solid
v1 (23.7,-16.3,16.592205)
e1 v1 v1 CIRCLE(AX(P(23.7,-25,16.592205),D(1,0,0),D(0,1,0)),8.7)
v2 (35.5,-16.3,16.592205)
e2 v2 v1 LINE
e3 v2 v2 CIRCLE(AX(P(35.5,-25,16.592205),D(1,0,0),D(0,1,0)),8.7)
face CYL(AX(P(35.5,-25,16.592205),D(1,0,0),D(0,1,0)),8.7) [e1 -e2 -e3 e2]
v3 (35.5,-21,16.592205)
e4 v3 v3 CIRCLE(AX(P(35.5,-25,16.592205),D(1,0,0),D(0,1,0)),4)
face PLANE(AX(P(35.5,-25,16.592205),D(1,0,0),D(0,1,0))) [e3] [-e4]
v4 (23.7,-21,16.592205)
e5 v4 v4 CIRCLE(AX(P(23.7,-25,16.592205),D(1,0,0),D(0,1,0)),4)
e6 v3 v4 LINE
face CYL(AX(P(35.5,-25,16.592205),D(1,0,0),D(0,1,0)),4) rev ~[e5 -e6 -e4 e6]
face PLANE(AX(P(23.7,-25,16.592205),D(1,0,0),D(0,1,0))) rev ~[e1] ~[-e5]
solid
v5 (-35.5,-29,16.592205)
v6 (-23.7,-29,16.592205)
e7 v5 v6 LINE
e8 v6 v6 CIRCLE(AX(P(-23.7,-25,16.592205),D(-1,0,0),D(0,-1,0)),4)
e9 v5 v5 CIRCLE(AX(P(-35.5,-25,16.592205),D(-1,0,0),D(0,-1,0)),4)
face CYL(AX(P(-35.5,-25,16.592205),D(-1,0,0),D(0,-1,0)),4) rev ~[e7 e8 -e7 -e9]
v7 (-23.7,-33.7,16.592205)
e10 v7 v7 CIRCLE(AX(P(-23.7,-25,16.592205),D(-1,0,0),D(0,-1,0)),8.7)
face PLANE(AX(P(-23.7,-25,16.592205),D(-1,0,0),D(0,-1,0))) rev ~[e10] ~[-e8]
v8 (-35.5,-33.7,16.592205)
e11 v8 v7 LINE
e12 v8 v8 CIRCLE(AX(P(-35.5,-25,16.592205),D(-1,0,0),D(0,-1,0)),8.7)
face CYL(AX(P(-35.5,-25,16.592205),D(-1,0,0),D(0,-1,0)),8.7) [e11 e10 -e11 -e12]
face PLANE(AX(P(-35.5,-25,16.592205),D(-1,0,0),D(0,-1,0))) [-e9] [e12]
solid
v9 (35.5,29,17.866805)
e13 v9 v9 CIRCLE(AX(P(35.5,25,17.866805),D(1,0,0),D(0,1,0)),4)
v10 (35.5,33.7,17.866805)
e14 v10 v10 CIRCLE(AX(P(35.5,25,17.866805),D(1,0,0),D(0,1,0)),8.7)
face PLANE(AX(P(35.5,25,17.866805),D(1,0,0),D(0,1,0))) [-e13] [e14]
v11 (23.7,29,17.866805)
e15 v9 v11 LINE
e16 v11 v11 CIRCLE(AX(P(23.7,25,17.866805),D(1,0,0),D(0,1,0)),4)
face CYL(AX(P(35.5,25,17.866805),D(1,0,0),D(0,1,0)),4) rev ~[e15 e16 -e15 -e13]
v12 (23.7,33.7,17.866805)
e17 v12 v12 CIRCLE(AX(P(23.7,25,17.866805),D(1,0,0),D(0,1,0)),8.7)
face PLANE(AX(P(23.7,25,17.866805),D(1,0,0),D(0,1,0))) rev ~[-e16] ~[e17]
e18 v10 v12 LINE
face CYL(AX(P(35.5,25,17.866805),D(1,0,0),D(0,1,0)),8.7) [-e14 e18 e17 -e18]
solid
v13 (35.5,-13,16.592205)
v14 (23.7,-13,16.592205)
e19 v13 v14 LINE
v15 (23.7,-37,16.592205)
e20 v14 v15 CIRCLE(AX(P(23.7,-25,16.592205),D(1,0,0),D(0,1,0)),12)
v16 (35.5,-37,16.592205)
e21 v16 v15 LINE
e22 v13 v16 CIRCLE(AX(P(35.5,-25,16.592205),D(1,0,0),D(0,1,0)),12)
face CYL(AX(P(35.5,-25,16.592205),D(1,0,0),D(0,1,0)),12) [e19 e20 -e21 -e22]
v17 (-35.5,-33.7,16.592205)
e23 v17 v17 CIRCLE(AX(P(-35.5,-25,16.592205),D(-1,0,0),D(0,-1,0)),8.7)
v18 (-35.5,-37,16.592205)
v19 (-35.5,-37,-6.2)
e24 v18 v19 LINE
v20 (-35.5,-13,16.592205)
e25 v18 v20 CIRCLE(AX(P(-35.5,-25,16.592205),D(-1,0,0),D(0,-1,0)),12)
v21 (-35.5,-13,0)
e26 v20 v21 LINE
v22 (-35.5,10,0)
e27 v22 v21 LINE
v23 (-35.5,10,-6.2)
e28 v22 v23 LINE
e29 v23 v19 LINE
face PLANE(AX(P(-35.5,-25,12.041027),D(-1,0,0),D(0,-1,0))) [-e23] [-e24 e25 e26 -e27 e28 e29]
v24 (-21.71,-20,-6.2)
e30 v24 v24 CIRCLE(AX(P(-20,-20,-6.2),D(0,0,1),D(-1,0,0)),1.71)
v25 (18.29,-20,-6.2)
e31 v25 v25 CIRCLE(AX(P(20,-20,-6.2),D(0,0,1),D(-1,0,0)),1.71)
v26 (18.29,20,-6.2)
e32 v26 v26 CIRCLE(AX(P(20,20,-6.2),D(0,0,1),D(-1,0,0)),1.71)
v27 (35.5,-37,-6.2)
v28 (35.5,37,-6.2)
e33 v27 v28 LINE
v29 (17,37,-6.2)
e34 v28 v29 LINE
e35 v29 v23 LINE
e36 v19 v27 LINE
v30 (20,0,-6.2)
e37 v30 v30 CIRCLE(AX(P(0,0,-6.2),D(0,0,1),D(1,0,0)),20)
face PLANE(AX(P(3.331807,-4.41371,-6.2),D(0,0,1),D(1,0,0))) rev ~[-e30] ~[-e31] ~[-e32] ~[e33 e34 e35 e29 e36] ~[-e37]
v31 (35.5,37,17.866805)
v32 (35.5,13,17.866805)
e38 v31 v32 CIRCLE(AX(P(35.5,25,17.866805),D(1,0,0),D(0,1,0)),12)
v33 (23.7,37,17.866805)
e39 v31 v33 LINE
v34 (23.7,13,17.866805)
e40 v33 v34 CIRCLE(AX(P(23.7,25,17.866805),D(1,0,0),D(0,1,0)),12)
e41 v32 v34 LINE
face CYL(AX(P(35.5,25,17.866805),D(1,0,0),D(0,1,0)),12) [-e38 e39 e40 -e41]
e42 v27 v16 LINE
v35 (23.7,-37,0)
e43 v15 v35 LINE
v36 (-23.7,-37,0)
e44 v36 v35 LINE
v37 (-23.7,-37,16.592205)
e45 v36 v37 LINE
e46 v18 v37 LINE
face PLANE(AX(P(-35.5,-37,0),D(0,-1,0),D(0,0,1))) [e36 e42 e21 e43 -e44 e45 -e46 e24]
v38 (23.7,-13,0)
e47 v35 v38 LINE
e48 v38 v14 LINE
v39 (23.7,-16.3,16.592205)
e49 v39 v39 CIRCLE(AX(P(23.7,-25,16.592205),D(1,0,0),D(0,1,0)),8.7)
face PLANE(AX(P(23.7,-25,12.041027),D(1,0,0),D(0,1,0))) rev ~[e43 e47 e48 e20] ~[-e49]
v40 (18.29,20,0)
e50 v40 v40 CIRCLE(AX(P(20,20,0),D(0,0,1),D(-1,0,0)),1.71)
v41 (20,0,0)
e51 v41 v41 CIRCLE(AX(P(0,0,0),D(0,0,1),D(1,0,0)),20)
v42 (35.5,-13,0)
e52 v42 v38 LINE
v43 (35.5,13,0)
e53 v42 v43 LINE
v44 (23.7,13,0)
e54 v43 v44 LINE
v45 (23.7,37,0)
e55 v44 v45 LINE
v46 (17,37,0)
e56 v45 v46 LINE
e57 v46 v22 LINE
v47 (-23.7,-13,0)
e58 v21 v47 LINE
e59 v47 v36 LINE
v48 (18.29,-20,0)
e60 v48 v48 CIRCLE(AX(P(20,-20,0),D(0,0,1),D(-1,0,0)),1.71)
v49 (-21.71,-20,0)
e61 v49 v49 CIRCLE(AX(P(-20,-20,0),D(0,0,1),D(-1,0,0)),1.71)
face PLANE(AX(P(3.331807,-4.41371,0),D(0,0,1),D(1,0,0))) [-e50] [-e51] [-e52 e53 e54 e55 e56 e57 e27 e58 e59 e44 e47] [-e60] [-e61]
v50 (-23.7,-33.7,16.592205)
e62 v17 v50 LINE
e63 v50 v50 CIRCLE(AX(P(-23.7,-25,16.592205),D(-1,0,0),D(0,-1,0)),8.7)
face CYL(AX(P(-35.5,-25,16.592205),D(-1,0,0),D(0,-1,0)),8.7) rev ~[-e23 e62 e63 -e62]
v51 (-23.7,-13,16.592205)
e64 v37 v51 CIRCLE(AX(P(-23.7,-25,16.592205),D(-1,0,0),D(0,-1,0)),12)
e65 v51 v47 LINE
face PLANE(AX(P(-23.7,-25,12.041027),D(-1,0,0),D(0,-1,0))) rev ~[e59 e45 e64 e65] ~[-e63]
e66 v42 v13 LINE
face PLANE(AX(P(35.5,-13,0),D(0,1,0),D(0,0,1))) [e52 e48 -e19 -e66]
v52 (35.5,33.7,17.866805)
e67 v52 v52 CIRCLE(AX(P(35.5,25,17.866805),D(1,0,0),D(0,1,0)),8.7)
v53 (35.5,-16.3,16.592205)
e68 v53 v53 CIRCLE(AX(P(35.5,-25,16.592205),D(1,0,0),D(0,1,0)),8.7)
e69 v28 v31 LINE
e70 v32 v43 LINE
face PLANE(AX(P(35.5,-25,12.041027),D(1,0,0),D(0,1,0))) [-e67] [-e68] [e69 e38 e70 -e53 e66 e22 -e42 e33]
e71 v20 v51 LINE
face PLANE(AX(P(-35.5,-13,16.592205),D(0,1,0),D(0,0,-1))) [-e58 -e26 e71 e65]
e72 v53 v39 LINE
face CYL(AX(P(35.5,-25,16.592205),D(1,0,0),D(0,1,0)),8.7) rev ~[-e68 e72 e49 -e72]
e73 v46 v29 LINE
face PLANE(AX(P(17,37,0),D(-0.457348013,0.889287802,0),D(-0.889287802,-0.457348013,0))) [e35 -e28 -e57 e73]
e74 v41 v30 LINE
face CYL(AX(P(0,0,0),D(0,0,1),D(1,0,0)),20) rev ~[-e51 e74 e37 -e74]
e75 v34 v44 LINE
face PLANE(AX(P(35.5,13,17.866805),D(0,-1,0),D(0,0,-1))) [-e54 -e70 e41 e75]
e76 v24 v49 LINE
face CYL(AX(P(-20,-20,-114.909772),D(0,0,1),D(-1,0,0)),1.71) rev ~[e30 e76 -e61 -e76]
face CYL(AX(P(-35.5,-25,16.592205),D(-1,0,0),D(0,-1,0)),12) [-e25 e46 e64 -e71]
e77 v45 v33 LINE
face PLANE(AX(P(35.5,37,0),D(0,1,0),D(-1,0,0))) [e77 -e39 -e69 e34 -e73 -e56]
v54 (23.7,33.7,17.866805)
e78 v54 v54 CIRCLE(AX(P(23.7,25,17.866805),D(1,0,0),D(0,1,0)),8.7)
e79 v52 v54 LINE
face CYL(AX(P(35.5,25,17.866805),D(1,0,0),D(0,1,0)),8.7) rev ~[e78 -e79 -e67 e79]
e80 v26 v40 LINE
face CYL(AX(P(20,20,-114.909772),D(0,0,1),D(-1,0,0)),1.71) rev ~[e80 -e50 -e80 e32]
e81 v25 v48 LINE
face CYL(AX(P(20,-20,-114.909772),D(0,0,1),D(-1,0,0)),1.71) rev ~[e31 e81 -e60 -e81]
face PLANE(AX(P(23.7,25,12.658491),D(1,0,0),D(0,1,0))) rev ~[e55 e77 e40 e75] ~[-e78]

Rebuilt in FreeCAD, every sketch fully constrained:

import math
import FreeCAD as App
import Part
import Sketcher


def add_polygon(sketch, points):
    """Adds a closed chain of lines whose ends are joined by coincident constraints."""
    first, n = sketch.GeometryCount, len(points)
    for a, b in zip(points, points[1:] + points[:1]):
        sketch.addGeometry(Part.LineSegment(App.Vector(*a, 0), App.Vector(*b, 0)), False)
    for i in range(n):
        sketch.addConstraint(Sketcher.Constraint("Coincident", first + i, 2, first + (i + 1) % n, 1))

doc = App.newDocument("Part")
body = doc.addObject("PartDesign::Body", "Body")

sketch1 = body.newObject("Sketcher::SketchObject", "Sketch")
sketch1.AttachmentSupport = (doc.getObject("XY_Plane"), [""])
sketch1.MapMode = "FlatFace"
add_polygon(sketch1, [(36, 37), (17, 37), (-36, 10), (-36, -37), (36, -37)])
sketch1.addGeometry(Part.Circle(App.Vector(0, 0, 0), App.Vector(0, 0, 1), 20), False)
sketch1.addConstraint([
    Sketcher.Constraint("Horizontal", 0),
    Sketcher.Constraint("Vertical", 2),
    Sketcher.Constraint("Horizontal", 3),
    Sketcher.Constraint("Vertical", 4),
    Sketcher.Constraint("Coincident", 5, 3, -1, 1),
    Sketcher.Constraint("Symmetric", 2, 2, 4, 2, -1, 1),
    Sketcher.Constraint("Diameter", 5, 40.0),
    Sketcher.Constraint("DistanceX", 3, 1, 3, 2, 71.0),
    Sketcher.Constraint("DistanceY", 2, 2, 2, 1, 47.0),
    Sketcher.Constraint("DistanceY", 4, 1, 4, 2, 74.0),
    Sketcher.Constraint("DistanceX", 0, 2, 0, 1, 18.5),
])
pad1 = body.newObject("PartDesign::Pad", "Pad")
pad1.Profile = sketch1
pad1.Length = 6.2
pad1.Reversed = True

sketch2 = body.newObject("Sketcher::SketchObject", "Sketch001")
sketch2.AttachmentSupport = (doc.getObject("YZ_Plane"), [""])
sketch2.MapMode = "FlatFace"
sketch2.AttachmentOffset = App.Placement(App.Vector(0, 0, 35.5), App.Rotation())
sketch2.addGeometry([
    Part.LineSegment(App.Vector(-37, 17, 0), App.Vector(-37, 0, 0)),
    Part.LineSegment(App.Vector(-37, 0, 0), App.Vector(-13, 0, 0)),
    Part.LineSegment(App.Vector(-13, 0, 0), App.Vector(-13, 17, 0)),
    Part.ArcOfCircle(Part.Circle(App.Vector(-25, 17, 0), App.Vector(0, 0, 1), 12), math.radians(0), math.radians(180)),
    Part.Circle(App.Vector(-25, 17, 0), App.Vector(0, 0, 1), 9),
    Part.LineSegment(App.Vector(13, 18, 0), App.Vector(13, 0, 0)),
    Part.LineSegment(App.Vector(13, 0, 0), App.Vector(37, 0, 0)),
    Part.LineSegment(App.Vector(37, 0, 0), App.Vector(37, 18, 0)),
    Part.ArcOfCircle(Part.Circle(App.Vector(25, 18, 0), App.Vector(0, 0, 1), 12), math.radians(0), math.radians(180)),
    Part.Circle(App.Vector(25, 18, 0), App.Vector(0, 0, 1), 9),
], False)
sketch2.addConstraint([
    Sketcher.Constraint("Coincident", 0, 2, 1, 1),
    Sketcher.Constraint("Coincident", 1, 2, 2, 1),
    Sketcher.Constraint("Tangent", 2, 2, 3, 1),
    Sketcher.Constraint("Tangent", 3, 2, 0, 1),
    Sketcher.Constraint("Coincident", 5, 2, 6, 1),
    Sketcher.Constraint("Coincident", 6, 2, 7, 1),
    Sketcher.Constraint("Tangent", 7, 2, 8, 1),
    Sketcher.Constraint("Tangent", 8, 2, 5, 1),
    Sketcher.Constraint("Vertical", 0),
    Sketcher.Constraint("Horizontal", 1),
    Sketcher.Constraint("Vertical", 2),
    Sketcher.Constraint("Vertical", 5),
    Sketcher.Constraint("Horizontal", 6),
    Sketcher.Constraint("Vertical", 7),
    Sketcher.Constraint("Coincident", 4, 3, 3, 3),
    Sketcher.Constraint("Coincident", 9, 3, 8, 3),
    Sketcher.Constraint("Equal", 3, 8),
    Sketcher.Constraint("Equal", 4, 9),
    Sketcher.Constraint("Symmetric", 1, 2, 5, 2, -1, 1),
    Sketcher.Constraint("PointOnObject", 0, 2, -1),
    Sketcher.Constraint("Radius", 3, 12.0),
    Sketcher.Constraint("Diameter", 4, 17.4),
    Sketcher.Constraint("DistanceX", 3, 3, -1, 1, 25.0),
    Sketcher.Constraint("DistanceY", 3, 3, 8, 3, 1.2746),
    Sketcher.Constraint("DistanceY", 0, 2, 0, 1, 16.592205),
])
pad2 = body.newObject("PartDesign::Pad", "Pad001")
pad2.Profile = sketch2
pad2.Length = 11.8
pad2.Reversed = True

sketch3 = body.newObject("Sketcher::SketchObject", "Sketch002")
sketch3.AttachmentSupport = (doc.getObject("YZ_Plane"), [""])
sketch3.MapMode = "FlatFace"
sketch3.AttachmentOffset = App.Placement(App.Vector(0, 0, -35.5), App.Rotation())
sketch3.addGeometry([
    Part.ArcOfCircle(Part.Circle(App.Vector(-25, 17, 0), App.Vector(0, 0, 1), 12), math.radians(0), math.radians(180)),
    Part.LineSegment(App.Vector(-13, 17, 0), App.Vector(-13, 0, 0)),
    Part.LineSegment(App.Vector(-13, 0, 0), App.Vector(-37, 0, 0)),
    Part.LineSegment(App.Vector(-37, 0, 0), App.Vector(-37, 17, 0)),
    Part.Circle(App.Vector(-25, 17, 0), App.Vector(0, 0, 1), 9),
], False)
sketch3.addConstraint([
    Sketcher.Constraint("Tangent", 0, 1, 1, 1),
    Sketcher.Constraint("Coincident", 1, 2, 2, 1),
    Sketcher.Constraint("Coincident", 2, 2, 3, 1),
    Sketcher.Constraint("Tangent", 3, 2, 0, 2),
    Sketcher.Constraint("Vertical", 1),
    Sketcher.Constraint("Horizontal", 2),
    Sketcher.Constraint("Vertical", 3),
    Sketcher.Constraint("Coincident", 4, 3, 0, 3),
    Sketcher.Constraint("PointOnObject", 1, 2, -1),
    Sketcher.Constraint("Radius", 0, 12.0),
    Sketcher.Constraint("Diameter", 4, 17.4),
    Sketcher.Constraint("DistanceX", 0, 3, -1, 1, 25.0),
    Sketcher.Constraint("DistanceY", 1, 2, 1, 1, 16.592205),
])
pad3 = body.newObject("PartDesign::Pad", "Pad002")
pad3.Profile = sketch3
pad3.Length = 11.8

sketch4 = body.newObject("Sketcher::SketchObject", "Sketch003")
sketch4.AttachmentSupport = (doc.getObject("XY_Plane"), [""])
sketch4.MapMode = "FlatFace"
sketch4.AttachmentOffset = App.Placement(App.Vector(0, 0, -6.2), App.Rotation())
sketch4.addGeometry([
    Part.Circle(App.Vector(-20, -20, 0), App.Vector(0, 0, 1), 1.7),
    Part.Circle(App.Vector(20, -20, 0), App.Vector(0, 0, 1), 1.7),
    Part.Circle(App.Vector(20, 20, 0), App.Vector(0, 0, 1), 1.7),
], False)
sketch4.addConstraint([
    Sketcher.Constraint("Equal", 0, 1),
    Sketcher.Constraint("Equal", 1, 2),
    Sketcher.Constraint("Symmetric", 0, 3, 2, 3, -1, 1),
    Sketcher.Constraint("Symmetric", 0, 3, 1, 3, -2),
    Sketcher.Constraint("Diameter", 0, 3.42),
    Sketcher.Constraint("DistanceX", 0, 3, -1, 1, 20.0),
    Sketcher.Constraint("DistanceY", 0, 3, -1, 1, 20.0),
])
doc.recompute()
hole = body.newObject("PartDesign::Hole", "Hole")
hole.Profile = sketch4
hole.ThreadType = "None"
hole.Diameter = 3.42
hole.DepthType = "ThroughAll"
hole.Reversed = True
body2 = doc.addObject("PartDesign::Body", "Body001")
body2.AllowCompound = True

sketch5 = body2.newObject("Sketcher::SketchObject", "Sketch004")
sketch5.AttachmentSupport = (doc.getObject("YZ_Plane001"), [""])
sketch5.MapMode = "FlatFace"
sketch5.AttachmentOffset = App.Placement(App.Vector(0, 0, 35.5), App.Rotation())
sketch5.addGeometry([
    Part.Circle(App.Vector(-25, 16.6, 0), App.Vector(0, 0, 1), 8.7),
    Part.Circle(App.Vector(-25, 16.6, 0), App.Vector(0, 0, 1), 4),
    Part.Circle(App.Vector(25, 17.9, 0), App.Vector(0, 0, 1), 8.7),
    Part.Circle(App.Vector(25, 17.9, 0), App.Vector(0, 0, 1), 4),
], False)
sketch5.addConstraint([
    Sketcher.Constraint("Coincident", 1, 3, 0, 3),
    Sketcher.Constraint("Coincident", 3, 3, 2, 3),
    Sketcher.Constraint("Equal", 0, 2),
    Sketcher.Constraint("Equal", 1, 3),
    Sketcher.Constraint("Diameter", 1, 8.0),
    Sketcher.Constraint("Diameter", 0, 17.4),
    Sketcher.Constraint("DistanceX", 0, 3, -1, 1, 25.0),
    Sketcher.Constraint("DistanceX", -1, 1, 2, 3, 25.0),
    Sketcher.Constraint("DistanceY", 0, 3, 2, 3, 1.2746),
    Sketcher.Constraint("DistanceY", -1, 1, 0, 3, 16.592205),
])
pad4 = body2.newObject("PartDesign::Pad", "Pad003")
pad4.Profile = sketch5
pad4.Length = 11.8
pad4.Reversed = True
body3 = doc.addObject("PartDesign::Body", "Body002")

sketch6 = body3.newObject("Sketcher::SketchObject", "Sketch005")
sketch6.AttachmentSupport = (doc.getObject("YZ_Plane002"), [""])
sketch6.MapMode = "FlatFace"
sketch6.AttachmentOffset = App.Placement(App.Vector(0, 0, -35.5), App.Rotation())
sketch6.addGeometry([
    Part.Circle(App.Vector(-25, 16.6, 0), App.Vector(0, 0, 1), 8.7),
    Part.Circle(App.Vector(-25, 16.6, 0), App.Vector(0, 0, 1), 4),
], False)
sketch6.addConstraint([
    Sketcher.Constraint("Coincident", 1, 3, 0, 3),
    Sketcher.Constraint("Diameter", 1, 8.0),
    Sketcher.Constraint("Diameter", 0, 17.4),
    Sketcher.Constraint("DistanceX", 0, 3, -1, 1, 25.0),
    Sketcher.Constraint("DistanceY", -1, 1, 0, 3, 16.592205),
])
pad5 = body3.newObject("PartDesign::Pad", "Pad004")
pad5.Profile = sketch6
pad5.Length = 11.8

doc.recompute()
